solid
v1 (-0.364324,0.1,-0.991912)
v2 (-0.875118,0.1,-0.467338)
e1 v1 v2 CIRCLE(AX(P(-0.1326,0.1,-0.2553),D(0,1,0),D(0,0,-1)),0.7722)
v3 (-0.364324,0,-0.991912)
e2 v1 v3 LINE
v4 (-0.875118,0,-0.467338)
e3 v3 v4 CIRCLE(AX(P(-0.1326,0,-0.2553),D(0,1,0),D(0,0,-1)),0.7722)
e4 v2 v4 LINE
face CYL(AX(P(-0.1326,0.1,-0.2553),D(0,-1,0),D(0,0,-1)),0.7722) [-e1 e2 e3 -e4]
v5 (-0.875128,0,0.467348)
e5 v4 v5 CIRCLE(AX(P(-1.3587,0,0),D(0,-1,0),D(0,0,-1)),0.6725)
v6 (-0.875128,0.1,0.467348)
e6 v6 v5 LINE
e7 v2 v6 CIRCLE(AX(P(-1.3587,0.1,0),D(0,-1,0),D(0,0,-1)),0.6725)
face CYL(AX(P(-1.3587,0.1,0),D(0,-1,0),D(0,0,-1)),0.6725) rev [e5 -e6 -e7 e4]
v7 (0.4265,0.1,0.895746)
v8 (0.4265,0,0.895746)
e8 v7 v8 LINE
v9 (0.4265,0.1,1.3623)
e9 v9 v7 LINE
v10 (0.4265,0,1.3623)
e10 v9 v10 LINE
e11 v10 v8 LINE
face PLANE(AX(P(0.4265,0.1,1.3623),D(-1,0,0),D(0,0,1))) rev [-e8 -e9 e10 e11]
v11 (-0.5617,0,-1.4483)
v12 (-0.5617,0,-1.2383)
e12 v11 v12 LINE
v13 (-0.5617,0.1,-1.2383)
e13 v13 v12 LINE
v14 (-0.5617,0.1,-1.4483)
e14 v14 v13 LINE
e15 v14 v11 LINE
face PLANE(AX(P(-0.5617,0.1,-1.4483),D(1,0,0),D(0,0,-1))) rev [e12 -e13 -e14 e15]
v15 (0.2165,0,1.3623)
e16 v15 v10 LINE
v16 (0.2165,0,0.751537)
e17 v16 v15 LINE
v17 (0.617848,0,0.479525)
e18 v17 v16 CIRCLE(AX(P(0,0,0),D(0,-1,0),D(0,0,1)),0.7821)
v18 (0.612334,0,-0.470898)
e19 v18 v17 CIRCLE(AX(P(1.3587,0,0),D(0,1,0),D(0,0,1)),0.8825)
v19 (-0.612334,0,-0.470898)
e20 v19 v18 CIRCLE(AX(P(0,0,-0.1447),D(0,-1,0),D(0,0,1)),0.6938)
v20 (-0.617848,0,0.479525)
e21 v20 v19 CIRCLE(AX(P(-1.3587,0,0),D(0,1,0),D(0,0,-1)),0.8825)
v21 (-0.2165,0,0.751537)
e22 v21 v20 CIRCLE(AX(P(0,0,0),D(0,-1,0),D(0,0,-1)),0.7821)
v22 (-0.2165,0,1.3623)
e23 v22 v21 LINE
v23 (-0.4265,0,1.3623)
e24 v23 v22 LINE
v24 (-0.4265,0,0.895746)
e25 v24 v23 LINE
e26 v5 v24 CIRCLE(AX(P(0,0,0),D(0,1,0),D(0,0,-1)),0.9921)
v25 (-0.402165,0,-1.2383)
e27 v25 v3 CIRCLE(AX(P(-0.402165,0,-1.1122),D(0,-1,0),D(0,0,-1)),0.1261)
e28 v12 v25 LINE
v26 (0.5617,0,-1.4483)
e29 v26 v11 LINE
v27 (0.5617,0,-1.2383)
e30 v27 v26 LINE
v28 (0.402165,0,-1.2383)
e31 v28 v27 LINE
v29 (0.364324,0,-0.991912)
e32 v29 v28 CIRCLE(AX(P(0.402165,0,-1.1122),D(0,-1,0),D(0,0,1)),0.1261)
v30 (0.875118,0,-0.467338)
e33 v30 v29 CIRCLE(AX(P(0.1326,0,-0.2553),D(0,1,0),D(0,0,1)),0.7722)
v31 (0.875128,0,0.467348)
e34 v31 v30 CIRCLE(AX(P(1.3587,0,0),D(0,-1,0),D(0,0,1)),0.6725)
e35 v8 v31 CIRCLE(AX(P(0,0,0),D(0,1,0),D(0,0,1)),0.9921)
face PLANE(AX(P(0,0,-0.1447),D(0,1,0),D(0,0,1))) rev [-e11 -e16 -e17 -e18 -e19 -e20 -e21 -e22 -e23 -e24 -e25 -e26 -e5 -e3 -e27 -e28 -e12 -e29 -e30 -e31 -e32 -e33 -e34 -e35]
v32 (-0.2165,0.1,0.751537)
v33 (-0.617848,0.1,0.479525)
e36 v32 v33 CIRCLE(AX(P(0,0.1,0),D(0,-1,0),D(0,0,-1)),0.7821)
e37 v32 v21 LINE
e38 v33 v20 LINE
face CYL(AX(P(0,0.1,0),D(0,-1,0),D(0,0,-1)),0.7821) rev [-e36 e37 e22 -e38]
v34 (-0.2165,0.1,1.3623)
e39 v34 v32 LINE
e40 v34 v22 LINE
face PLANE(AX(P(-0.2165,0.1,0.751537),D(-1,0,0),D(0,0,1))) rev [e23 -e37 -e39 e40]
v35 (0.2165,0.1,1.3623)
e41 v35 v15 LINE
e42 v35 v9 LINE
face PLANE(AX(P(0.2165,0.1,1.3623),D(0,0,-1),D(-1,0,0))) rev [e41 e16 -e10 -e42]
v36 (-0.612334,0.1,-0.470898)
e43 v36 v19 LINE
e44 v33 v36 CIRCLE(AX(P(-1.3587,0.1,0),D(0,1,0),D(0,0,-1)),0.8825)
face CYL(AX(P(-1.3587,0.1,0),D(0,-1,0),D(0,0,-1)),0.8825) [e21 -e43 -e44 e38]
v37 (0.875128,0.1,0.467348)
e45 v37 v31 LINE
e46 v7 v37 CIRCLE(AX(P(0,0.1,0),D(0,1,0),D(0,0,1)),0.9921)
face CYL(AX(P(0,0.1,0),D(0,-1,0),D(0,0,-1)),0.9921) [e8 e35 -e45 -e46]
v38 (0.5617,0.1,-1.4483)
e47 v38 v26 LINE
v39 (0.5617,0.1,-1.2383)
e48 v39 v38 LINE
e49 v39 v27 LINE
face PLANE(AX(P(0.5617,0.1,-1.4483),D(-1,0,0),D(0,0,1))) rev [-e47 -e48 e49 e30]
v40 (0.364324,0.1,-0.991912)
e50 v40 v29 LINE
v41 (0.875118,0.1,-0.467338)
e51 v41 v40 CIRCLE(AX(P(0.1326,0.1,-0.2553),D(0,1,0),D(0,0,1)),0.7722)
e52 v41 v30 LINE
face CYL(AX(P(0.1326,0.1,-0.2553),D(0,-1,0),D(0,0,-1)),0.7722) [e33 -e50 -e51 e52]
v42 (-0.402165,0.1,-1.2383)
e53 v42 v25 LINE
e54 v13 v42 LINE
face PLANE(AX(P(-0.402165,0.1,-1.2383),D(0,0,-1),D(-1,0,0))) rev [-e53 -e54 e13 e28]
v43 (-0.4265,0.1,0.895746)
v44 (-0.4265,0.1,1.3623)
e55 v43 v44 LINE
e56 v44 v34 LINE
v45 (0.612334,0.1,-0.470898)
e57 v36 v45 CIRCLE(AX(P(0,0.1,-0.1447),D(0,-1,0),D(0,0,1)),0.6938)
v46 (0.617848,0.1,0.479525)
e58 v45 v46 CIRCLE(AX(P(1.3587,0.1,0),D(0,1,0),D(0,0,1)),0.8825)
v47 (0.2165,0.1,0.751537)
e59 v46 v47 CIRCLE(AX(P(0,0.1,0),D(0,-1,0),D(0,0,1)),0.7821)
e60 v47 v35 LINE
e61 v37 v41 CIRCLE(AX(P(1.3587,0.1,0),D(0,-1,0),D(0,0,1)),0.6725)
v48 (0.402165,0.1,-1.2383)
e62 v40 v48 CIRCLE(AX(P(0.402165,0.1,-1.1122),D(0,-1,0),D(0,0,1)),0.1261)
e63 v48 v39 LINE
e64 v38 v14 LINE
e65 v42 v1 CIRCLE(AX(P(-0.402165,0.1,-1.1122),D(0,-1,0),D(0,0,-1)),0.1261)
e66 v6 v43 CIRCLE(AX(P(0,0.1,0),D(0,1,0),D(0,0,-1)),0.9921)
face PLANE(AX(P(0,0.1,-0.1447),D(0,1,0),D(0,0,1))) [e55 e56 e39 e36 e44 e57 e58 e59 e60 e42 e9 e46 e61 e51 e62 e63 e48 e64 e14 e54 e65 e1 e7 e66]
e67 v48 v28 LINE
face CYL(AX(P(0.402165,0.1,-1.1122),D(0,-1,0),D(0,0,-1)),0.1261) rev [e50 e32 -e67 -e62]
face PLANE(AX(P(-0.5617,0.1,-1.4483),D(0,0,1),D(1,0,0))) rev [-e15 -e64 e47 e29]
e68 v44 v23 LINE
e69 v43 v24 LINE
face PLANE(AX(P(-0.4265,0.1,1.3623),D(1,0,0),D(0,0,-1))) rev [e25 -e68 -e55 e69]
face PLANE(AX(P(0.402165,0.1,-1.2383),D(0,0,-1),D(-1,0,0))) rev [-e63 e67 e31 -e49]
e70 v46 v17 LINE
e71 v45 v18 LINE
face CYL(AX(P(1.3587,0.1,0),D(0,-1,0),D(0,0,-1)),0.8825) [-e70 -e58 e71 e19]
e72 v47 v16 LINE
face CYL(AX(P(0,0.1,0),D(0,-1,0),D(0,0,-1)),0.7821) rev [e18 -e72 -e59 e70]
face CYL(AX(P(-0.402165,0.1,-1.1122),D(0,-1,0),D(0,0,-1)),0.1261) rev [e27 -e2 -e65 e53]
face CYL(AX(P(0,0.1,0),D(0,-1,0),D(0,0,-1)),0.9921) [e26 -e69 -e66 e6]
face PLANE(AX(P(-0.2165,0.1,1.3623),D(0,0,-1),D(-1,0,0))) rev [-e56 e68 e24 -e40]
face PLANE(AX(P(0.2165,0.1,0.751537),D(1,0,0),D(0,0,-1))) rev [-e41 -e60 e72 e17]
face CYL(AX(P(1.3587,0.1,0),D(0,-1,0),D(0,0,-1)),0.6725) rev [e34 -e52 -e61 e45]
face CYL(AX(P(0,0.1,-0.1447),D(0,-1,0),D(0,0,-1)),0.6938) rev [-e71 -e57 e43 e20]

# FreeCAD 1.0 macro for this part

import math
import FreeCAD as App
import Part
import Sketcher
from FreeCAD import Vector
Q = App.Units.Quantity

doc = App.newDocument("Part")
body = doc.addObject("PartDesign::Body", "Body")

# Sketch on XZ plane
sketch1 = body.newObject("Sketcher::SketchObject", "Sketch")
sketch1.AttachmentSupport = (doc.getObject("XZ_Plane"), [""])
sketch1.MapMode = "FlatFace"
sketch1.addGeometry([
    Part.LineSegment(Vector(0.56, -1.45, 0), Vector(-0.56, -1.45, 0)),  # 0
    Part.LineSegment(Vector(-0.56, -1.45, 0), Vector(-0.56, -1.24, 0)),  # 1
    Part.LineSegment(Vector(-0.56, -1.24, 0), Vector(-0.4, -1.24, 0)),  # 2
    Part.ArcOfCircle(Part.Circle(Vector(-0.4, -1.11, 0), Vector(0, 0, 1), 0.13), math.radians(-90), math.radians(73)),  # 3
    Part.ArcOfCircle(Part.Circle(Vector(-0.13, -0.26, 0), Vector(0, 0, 1), 0.77), math.radians(-164), math.radians(-107)),  # 4
    Part.ArcOfCircle(Part.Circle(Vector(-1.36, 0, 0), Vector(0, 0, 1), 0.67), math.radians(-44), math.radians(44)),  # 5
    Part.ArcOfCircle(Part.Circle(Vector(0, 0, 0), Vector(0, 0, 1), 0.99), math.radians(115), math.radians(152)),  # 6
    Part.LineSegment(Vector(-0.43, 0.9, 0), Vector(-0.43, 1.36, 0)),  # 7
    Part.LineSegment(Vector(-0.43, 1.36, 0), Vector(-0.22, 1.36, 0)),  # 8
    Part.LineSegment(Vector(-0.22, 1.36, 0), Vector(-0.22, 0.75, 0)),  # 9
    Part.ArcOfCircle(Part.Circle(Vector(0, 0, 0), Vector(0, 0, 1), 0.78), math.radians(106), math.radians(142)),  # 10
    Part.ArcOfCircle(Part.Circle(Vector(-1.36, 0, 0), Vector(0, 0, 1), 0.88), math.radians(-32), math.radians(33)),  # 11
    Part.ArcOfCircle(Part.Circle(Vector(0, -0.14, 0), Vector(0, 0, 1), 0.69), math.radians(-152), math.radians(-28)),  # 12
    Part.ArcOfCircle(Part.Circle(Vector(1.36, 0, 0), Vector(0, 0, 1), 0.88), math.radians(147), math.radians(212)),  # 13
    Part.ArcOfCircle(Part.Circle(Vector(0, 0, 0), Vector(0, 0, 1), 0.78), math.radians(38), math.radians(74)),  # 14
    Part.LineSegment(Vector(0.22, 0.75, 0), Vector(0.22, 1.36, 0)),  # 15
    Part.LineSegment(Vector(0.22, 1.36, 0), Vector(0.43, 1.36, 0)),  # 16
    Part.LineSegment(Vector(0.43, 1.36, 0), Vector(0.43, 0.9, 0)),  # 17
    Part.ArcOfCircle(Part.Circle(Vector(0, 0, 0), Vector(0, 0, 1), 0.99), math.radians(28), math.radians(65)),  # 18
    Part.ArcOfCircle(Part.Circle(Vector(1.36, 0, 0), Vector(0, 0, 1), 0.67), math.radians(136), math.radians(224)),  # 19
    Part.ArcOfCircle(Part.Circle(Vector(0.13, -0.26, 0), Vector(0, 0, 1), 0.77), math.radians(-73), math.radians(-16)),  # 20
    Part.ArcOfCircle(Part.Circle(Vector(0.4, -1.11, 0), Vector(0, 0, 1), 0.13), math.radians(107), math.radians(270)),  # 21
    Part.LineSegment(Vector(0.4, -1.24, 0), Vector(0.56, -1.24, 0)),  # 22
    Part.LineSegment(Vector(0.56, -1.24, 0), Vector(0.56, -1.45, 0)),  # 23
], False)
sketch1.addConstraint([
    Sketcher.Constraint("Coincident", 0, 2, 1, 1),
    Sketcher.Constraint("Coincident", 1, 2, 2, 1),
    Sketcher.Constraint("Tangent", 2, 2, 3, 1),
    Sketcher.Constraint("Tangent", 3, 2, 4, 2),
    Sketcher.Constraint("Coincident", 4, 1, 5, 1),
    Sketcher.Constraint("Coincident", 5, 2, 6, 2),
    Sketcher.Constraint("Coincident", 6, 1, 7, 1),
    Sketcher.Constraint("Coincident", 7, 2, 8, 1),
    Sketcher.Constraint("Coincident", 8, 2, 9, 1),
    Sketcher.Constraint("Coincident", 9, 2, 10, 1),
    Sketcher.Constraint("Coincident", 10, 2, 11, 2),
    Sketcher.Constraint("Coincident", 11, 1, 12, 1),
    Sketcher.Constraint("Coincident", 12, 2, 13, 2),
    Sketcher.Constraint("Coincident", 13, 1, 14, 1),
    Sketcher.Constraint("Coincident", 14, 2, 15, 1),
    Sketcher.Constraint("Coincident", 15, 2, 16, 1),
    Sketcher.Constraint("Coincident", 16, 2, 17, 1),
    Sketcher.Constraint("Coincident", 17, 2, 18, 2),
    Sketcher.Constraint("Coincident", 18, 1, 19, 1),
    Sketcher.Constraint("Coincident", 19, 2, 20, 2),
    Sketcher.Constraint("Tangent", 20, 1, 21, 1),
    Sketcher.Constraint("Tangent", 21, 2, 22, 1),
    Sketcher.Constraint("Coincident", 22, 2, 23, 1),
    Sketcher.Constraint("Coincident", 23, 2, 0, 1),
    Sketcher.Constraint("Horizontal", 0),
    Sketcher.Constraint("Vertical", 1),
    Sketcher.Constraint("Horizontal", 2),
    Sketcher.Constraint("Vertical", 7),
    Sketcher.Constraint("Horizontal", 8),
    Sketcher.Constraint("Vertical", 9),
    Sketcher.Constraint("Vertical", 15),
    Sketcher.Constraint("Horizontal", 16),
    Sketcher.Constraint("Vertical", 17),
    Sketcher.Constraint("Horizontal", 22),
    Sketcher.Constraint("Vertical", 23),
    Sketcher.Constraint("Coincident", 6, 3, -1, 1),
    Sketcher.Constraint("Coincident", 10, 3, -1, 1),
    Sketcher.Constraint("Coincident", 14, 3, -1, 1),
    Sketcher.Constraint("Coincident", 18, 3, -1, 1),
    Sketcher.Constraint("Coincident", 11, 3, 5, 3),
    Sketcher.Constraint("Coincident", 19, 3, 13, 3),
    Sketcher.Constraint("Equal", 11, 13),
    Sketcher.Constraint("Equal", 10, 14),
    Sketcher.Constraint("Equal", 6, 18),
    Sketcher.Constraint("Equal", 5, 19),
    Sketcher.Constraint("Equal", 4, 20),
    Sketcher.Constraint("Equal", 3, 21),
    Sketcher.Constraint("Symmetric", 5, 3, 13, 3, -1, 1),
    Sketcher.Constraint("Symmetric", 4, 3, 20, 3, -2),
    Sketcher.Constraint("Symmetric", 11, 1, 12, 2, -2),
    Sketcher.Constraint("Symmetric", 8, 2, 15, 2, -2),
    Sketcher.Constraint("Symmetric", 1, 2, 22, 2, -2),
    Sketcher.Constraint("Horizontal", 6, 1, 17, 2),
    Sketcher.Constraint("Equal", 16, 1),
    Sketcher.Constraint("DistanceX", 8, 1, 8, 2, Q("0.21 mm")),
    Sketcher.Constraint("Radius", 3, Q("0.1261 mm")),
    Sketcher.Constraint("Radius", 4, Q("0.7722 mm")),
    Sketcher.Constraint("Radius", 5, Q("0.6725 mm")),
    Sketcher.Constraint("Radius", 6, Q("0.9921 mm")),
    Sketcher.Constraint("Radius", 10, Q("0.7821 mm")),
    Sketcher.Constraint("Radius", 11, Q("0.8825 mm")),
    Sketcher.Constraint("Radius", 12, Q("0.6938 mm")),
    Sketcher.Constraint("DistanceX", 0, 2, 0, 1, Q("1.1234 mm")),
    Sketcher.Constraint("DistanceY", 0, 2, 4, 3, Q("1.193 mm")),
    Sketcher.Constraint("DistanceX", 9, 2, 14, 2, Q("0.433 mm")),
    Sketcher.Constraint("DistanceY", 3, 3, -1, 1, Q("1.1122 mm")),
    Sketcher.Constraint("DistanceX", 4, 3, -1, 1, Q("0.1326 mm")),
    Sketcher.Constraint("DistanceX", 5, 3, -1, 1, Q("1.3587 mm")),
    Sketcher.Constraint("DistanceY", 12, 3, -1, 1, Q("0.1447 mm")),
    Sketcher.Constraint("DistanceY", -1, 1, 7, 2, Q("1.3623 mm")),
])
pad1 = body.newObject("PartDesign::Pad", "Pad")
pad1.Profile = sketch1
pad1.Length = 0.1
pad1.Reversed = True

doc.recompute()
